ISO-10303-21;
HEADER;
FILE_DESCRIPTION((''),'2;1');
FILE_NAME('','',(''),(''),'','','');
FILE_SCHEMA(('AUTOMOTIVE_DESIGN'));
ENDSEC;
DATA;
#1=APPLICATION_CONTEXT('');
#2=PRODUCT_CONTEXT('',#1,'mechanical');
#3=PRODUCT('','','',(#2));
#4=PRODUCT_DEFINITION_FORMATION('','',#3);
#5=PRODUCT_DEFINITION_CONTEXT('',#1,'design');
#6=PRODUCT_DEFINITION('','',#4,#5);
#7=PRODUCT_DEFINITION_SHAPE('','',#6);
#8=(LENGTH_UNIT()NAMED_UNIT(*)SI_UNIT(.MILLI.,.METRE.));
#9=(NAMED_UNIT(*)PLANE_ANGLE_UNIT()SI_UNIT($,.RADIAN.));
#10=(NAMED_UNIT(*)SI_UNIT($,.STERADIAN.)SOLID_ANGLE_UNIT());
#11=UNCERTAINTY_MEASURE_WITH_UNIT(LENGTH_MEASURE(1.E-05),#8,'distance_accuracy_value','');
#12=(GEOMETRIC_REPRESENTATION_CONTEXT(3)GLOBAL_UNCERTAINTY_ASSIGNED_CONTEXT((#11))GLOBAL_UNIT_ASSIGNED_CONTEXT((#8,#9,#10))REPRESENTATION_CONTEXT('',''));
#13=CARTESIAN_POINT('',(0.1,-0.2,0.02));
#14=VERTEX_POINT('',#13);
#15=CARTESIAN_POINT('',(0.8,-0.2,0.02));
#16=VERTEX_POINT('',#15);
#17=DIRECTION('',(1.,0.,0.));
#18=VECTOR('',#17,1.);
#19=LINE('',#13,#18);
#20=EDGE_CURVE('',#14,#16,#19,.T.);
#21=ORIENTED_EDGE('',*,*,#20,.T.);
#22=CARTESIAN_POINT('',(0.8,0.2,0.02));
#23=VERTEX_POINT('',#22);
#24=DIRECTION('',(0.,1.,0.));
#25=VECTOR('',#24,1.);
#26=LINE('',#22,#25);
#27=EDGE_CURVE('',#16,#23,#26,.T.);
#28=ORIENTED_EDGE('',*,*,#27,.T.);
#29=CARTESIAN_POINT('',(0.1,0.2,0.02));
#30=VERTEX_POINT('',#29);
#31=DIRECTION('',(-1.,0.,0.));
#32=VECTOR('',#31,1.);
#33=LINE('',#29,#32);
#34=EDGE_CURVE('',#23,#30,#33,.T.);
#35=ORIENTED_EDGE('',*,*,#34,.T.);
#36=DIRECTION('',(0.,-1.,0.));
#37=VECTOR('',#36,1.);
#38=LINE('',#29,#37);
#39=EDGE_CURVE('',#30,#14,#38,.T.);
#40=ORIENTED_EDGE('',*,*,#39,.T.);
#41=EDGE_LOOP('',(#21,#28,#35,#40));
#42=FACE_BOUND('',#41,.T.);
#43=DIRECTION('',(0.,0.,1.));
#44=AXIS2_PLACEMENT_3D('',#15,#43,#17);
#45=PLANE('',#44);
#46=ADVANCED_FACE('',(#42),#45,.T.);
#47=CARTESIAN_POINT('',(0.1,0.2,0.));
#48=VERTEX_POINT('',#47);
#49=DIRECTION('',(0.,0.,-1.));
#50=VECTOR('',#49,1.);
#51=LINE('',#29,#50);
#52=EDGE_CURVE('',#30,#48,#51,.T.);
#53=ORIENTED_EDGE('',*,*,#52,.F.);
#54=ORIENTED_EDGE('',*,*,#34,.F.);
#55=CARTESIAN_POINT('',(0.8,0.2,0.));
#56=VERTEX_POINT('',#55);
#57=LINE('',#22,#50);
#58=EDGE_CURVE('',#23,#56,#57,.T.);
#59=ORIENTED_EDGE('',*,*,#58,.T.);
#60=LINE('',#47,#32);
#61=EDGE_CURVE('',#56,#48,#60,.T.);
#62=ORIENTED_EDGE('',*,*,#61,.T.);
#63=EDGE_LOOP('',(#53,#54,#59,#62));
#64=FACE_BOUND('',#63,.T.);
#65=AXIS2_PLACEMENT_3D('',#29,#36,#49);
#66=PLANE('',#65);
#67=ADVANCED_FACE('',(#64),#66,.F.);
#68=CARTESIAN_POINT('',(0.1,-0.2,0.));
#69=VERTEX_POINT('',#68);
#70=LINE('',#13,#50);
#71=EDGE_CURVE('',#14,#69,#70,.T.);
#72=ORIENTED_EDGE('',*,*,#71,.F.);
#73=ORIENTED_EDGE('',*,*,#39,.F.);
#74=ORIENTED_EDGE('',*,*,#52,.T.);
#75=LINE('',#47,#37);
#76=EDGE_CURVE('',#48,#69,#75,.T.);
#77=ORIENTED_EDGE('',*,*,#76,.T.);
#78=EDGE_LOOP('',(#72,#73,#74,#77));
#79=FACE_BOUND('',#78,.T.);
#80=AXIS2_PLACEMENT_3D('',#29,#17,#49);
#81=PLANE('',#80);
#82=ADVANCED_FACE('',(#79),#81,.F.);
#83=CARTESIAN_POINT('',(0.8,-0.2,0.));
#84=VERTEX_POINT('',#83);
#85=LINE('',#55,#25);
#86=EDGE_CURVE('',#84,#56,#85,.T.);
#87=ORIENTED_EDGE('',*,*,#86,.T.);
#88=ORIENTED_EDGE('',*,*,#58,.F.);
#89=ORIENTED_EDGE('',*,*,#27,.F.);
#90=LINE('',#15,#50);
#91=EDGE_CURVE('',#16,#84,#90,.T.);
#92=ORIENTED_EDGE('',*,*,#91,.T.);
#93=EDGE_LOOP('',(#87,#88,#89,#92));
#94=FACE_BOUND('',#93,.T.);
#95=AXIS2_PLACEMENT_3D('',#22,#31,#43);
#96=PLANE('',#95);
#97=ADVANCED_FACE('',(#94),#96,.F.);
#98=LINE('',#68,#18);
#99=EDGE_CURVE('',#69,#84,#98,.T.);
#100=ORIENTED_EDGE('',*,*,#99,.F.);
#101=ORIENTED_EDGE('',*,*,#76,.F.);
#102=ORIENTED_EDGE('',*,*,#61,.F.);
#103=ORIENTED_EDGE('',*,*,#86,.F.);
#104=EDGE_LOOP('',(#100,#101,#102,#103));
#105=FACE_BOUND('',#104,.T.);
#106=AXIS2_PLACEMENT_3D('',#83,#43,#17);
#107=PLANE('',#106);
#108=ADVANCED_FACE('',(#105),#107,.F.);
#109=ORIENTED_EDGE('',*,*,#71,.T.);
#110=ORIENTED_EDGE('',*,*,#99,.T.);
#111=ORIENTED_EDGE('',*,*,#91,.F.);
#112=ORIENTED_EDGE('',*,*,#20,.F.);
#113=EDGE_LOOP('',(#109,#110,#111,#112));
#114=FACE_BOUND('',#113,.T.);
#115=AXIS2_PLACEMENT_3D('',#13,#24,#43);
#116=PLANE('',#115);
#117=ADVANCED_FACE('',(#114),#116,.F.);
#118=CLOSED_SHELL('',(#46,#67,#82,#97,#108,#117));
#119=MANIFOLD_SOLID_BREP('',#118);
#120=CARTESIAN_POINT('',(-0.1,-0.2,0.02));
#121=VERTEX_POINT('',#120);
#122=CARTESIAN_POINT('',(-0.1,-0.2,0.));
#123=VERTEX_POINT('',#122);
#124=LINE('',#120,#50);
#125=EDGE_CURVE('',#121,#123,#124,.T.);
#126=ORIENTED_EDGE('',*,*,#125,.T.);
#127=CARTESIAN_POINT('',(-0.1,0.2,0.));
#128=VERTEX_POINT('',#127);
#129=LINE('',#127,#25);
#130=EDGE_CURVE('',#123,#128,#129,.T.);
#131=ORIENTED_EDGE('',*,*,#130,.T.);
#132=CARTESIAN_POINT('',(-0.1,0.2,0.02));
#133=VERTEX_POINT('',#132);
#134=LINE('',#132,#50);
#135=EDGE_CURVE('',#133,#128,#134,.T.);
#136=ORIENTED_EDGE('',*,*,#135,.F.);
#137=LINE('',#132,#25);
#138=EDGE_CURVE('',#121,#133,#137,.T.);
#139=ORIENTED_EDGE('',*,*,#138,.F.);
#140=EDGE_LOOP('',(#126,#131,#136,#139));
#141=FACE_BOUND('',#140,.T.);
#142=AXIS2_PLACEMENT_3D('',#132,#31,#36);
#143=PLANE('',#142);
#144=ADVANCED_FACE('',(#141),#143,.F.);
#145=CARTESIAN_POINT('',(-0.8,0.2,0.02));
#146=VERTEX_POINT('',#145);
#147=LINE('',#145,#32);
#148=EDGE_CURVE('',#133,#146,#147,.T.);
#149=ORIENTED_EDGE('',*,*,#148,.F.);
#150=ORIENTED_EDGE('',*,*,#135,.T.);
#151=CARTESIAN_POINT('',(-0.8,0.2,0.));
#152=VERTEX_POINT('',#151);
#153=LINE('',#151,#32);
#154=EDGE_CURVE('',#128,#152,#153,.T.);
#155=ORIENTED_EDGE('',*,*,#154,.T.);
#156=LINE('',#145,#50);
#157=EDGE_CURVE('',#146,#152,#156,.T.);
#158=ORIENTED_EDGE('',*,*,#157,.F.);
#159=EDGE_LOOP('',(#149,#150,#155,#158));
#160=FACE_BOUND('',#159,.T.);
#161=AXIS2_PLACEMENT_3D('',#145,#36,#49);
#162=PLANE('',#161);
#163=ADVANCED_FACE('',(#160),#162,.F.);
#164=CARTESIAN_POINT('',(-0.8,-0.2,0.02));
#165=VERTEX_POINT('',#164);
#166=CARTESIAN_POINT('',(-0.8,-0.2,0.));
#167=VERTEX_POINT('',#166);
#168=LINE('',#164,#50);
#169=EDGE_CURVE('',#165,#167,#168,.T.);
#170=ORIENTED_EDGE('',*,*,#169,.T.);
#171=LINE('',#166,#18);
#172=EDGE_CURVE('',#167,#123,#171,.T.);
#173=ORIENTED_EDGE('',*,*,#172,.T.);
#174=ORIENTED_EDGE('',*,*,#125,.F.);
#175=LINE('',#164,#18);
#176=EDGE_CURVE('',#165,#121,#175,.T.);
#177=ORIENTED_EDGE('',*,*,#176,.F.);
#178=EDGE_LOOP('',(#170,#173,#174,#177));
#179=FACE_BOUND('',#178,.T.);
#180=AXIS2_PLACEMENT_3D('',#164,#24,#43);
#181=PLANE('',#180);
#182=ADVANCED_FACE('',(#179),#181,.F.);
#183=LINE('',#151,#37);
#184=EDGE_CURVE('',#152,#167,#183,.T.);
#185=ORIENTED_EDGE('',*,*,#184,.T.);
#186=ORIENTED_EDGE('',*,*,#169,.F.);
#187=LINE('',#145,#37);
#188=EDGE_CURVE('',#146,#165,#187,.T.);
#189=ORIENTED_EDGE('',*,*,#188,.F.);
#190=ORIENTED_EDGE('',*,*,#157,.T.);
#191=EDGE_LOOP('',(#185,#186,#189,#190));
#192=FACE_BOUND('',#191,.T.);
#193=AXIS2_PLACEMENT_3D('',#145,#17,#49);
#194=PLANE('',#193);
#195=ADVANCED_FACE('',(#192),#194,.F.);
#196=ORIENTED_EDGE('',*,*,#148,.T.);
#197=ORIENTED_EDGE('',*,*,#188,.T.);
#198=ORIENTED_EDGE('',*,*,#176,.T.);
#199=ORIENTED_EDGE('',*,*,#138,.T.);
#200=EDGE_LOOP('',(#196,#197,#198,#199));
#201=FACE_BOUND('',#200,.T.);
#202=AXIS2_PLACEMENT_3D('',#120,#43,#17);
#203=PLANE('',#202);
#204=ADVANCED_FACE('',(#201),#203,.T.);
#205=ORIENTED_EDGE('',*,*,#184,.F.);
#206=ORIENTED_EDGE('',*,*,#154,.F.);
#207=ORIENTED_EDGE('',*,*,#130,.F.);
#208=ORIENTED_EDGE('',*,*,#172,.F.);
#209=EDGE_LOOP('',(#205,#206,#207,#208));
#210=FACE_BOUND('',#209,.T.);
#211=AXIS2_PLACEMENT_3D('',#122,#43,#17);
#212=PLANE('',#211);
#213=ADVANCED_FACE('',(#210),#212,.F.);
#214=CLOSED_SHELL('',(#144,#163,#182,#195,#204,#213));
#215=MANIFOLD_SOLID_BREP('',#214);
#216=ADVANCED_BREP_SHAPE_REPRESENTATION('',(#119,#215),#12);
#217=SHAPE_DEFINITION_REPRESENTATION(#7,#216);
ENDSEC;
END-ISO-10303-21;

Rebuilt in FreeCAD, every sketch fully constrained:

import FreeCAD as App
import Part
import Sketcher
from FreeCAD import Vector


def add_polygon(sketch, points):
    """Adds a closed chain of lines whose ends are joined by coincident constraints."""
    first, n = sketch.GeometryCount, len(points)
    for a, b in zip(points, points[1:] + points[:1]):
        sketch.addGeometry(Part.LineSegment(App.Vector(*a, 0), App.Vector(*b, 0)), False)
    for i in range(n):
        sketch.addConstraint(Sketcher.Constraint("Coincident", first + i, 2, first + (i + 1) % n, 1))

doc = App.newDocument("Part")
body = doc.addObject("PartDesign::Body", "Body")

# Sketch on XY plane
sketch1 = body.newObject("Sketcher::SketchObject", "Sketch")
sketch1.AttachmentSupport = (doc.getObject("XY_Plane"), [""])
sketch1.MapMode = "FlatFace"
add_polygon(sketch1, [(-0.8, 0.2), (-0.8, -0.2), (-0.1, -0.2), (-0.1, 0.2)])  # lines 0-3
sketch1.addConstraint(Sketcher.Constraint("Vertical", 0))
sketch1.addConstraint(Sketcher.Constraint("Horizontal", 1))
sketch1.addConstraint(Sketcher.Constraint("Vertical", 2))
sketch1.addConstraint(Sketcher.Constraint("Horizontal", 3))
sketch1.addConstraint(Sketcher.Constraint("DistanceX", 1, 1, 1, 2, 0.7))
sketch1.addConstraint(Sketcher.Constraint("DistanceY", 0, 2, 0, 1, 0.4))
sketch1.addConstraint(Sketcher.Constraint("DistanceX", 0, 2, -1, 1, 0.8))
sketch1.addConstraint(Sketcher.Constraint("DistanceY", 0, 2, -1, 1, 0.2))
pad1 = body.newObject("PartDesign::Pad", "Pad")
pad1.Profile = sketch1
pad1.Length = 0.02
body2 = doc.addObject("PartDesign::Body", "Body001")

# Sketch on XY plane
sketch2 = body2.newObject("Sketcher::SketchObject", "Sketch001")
sketch2.AttachmentSupport = (doc.getObject("XY_Plane001"), [""])
sketch2.MapMode = "FlatFace"
add_polygon(sketch2, [(0.1, 0.2), (0.1, -0.2), (0.8, -0.2), (0.8, 0.2)])  # lines 0-3
sketch2.addConstraint(Sketcher.Constraint("Vertical", 0))
sketch2.addConstraint(Sketcher.Constraint("Horizontal", 1))
sketch2.addConstraint(Sketcher.Constraint("Vertical", 2))
sketch2.addConstraint(Sketcher.Constraint("Horizontal", 3))
sketch2.addConstraint(Sketcher.Constraint("DistanceX", 1, 1, 1, 2, 0.7))
sketch2.addConstraint(Sketcher.Constraint("DistanceY", 0, 2, 0, 1, 0.4))
sketch2.addConstraint(Sketcher.Constraint("DistanceX", -1, 1, 0, 2, 0.1))
sketch2.addConstraint(Sketcher.Constraint("DistanceY", 0, 2, -1, 1, 0.2))
pad2 = body2.newObject("PartDesign::Pad", "Pad001")
pad2.Profile = sketch2
pad2.Length = 0.02

doc.recompute()
